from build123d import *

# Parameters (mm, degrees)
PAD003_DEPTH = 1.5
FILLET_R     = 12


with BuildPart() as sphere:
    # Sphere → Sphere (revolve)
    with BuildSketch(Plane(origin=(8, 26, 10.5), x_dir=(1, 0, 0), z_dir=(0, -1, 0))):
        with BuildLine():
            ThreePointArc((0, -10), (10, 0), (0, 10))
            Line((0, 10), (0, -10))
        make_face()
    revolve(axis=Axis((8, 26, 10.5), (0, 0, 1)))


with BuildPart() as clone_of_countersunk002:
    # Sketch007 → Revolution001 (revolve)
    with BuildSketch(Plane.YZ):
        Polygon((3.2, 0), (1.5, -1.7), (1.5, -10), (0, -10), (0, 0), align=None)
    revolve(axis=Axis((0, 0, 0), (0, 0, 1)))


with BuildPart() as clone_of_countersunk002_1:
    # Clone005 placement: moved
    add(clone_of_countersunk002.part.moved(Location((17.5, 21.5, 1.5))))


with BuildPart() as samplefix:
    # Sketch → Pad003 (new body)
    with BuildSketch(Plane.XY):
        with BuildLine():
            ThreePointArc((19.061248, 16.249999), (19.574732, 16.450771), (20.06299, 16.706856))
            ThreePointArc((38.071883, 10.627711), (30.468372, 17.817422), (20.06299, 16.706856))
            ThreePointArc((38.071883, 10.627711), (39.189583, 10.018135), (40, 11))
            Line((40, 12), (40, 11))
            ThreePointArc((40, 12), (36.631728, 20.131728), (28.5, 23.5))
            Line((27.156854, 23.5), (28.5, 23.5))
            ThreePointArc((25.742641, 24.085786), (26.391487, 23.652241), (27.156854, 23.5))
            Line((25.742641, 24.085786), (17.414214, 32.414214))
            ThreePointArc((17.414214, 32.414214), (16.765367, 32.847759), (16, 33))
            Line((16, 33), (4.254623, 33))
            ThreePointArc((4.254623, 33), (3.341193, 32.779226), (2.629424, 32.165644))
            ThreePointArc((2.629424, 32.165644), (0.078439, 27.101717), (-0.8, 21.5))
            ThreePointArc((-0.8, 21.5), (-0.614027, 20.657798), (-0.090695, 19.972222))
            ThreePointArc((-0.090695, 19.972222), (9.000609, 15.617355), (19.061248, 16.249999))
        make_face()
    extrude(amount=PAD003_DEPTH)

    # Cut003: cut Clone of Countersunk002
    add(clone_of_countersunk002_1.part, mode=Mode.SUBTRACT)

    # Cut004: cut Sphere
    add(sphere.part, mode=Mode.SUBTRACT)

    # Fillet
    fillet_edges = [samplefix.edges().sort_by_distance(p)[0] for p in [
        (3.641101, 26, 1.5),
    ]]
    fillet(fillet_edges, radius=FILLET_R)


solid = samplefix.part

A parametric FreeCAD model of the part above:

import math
import FreeCAD as App
import Part
import Sketcher

V = App.Vector
Q = App.Units.Quantity


def edges_at(feature, points):
    """Names of the edges that pass closest to the given points."""
    edges = feature.Shape.Edges
    near = lambda p: min(range(len(edges)), key=lambda i: edges[i].distToShape(Part.Vertex(*p))[0])
    return sorted({f"Edge{near(p) + 1}" for p in points})


def add_polygon(sketch, points):
    """Adds a closed chain of lines whose ends are joined by coincident constraints."""
    first, n = sketch.GeometryCount, len(points)
    for a, b in zip(points, points[1:] + points[:1]):
        sketch.addGeometry(Part.LineSegment(App.Vector(*a, 0), App.Vector(*b, 0)), False)
    for i in range(n):
        sketch.addConstraint(Sketcher.Constraint("Coincident", first + i, 2, first + (i + 1) % n, 1))

doc = App.newDocument("Part")
body = doc.addObject("PartDesign::Body", "Body")

# Sketch on XZ plane
sketch1 = body.newObject("Sketcher::SketchObject", "Sketch")
sketch1.AttachmentSupport = (doc.getObject("XZ_Plane"), [""])
sketch1.MapMode = "FlatFace"
sketch1.AttachmentOffset = App.Placement(V(0, 0, -26), App.Rotation())
sketch1.addGeometry([
    Part.ArcOfCircle(Part.Circle(V(8, 10, 0), V(0, 0, 1), 10), math.radians(-90), math.radians(90)),
    Part.LineSegment(V(8, 20, 0), V(8, 0, 0)),
], False)
sketch1.addGeometry(Part.LineSegment(V(8, 0, 0), V(8, 20, 0)), True)  # axis
sketch1.addConstraint([
    Sketcher.Constraint("Coincident", 0, 1, 1, 2),
    Sketcher.Constraint("Coincident", 1, 1, 0, 2),
    Sketcher.Constraint("Vertical", 1),
    Sketcher.Constraint("Vertical", 2),
    Sketcher.Constraint("Coincident", 2, 1, 0, 1),
    Sketcher.Constraint("Equal", 1, 2),
    Sketcher.Constraint("Radius", 0, 10.0),
    Sketcher.Constraint("DistanceX", -1, 1, 0, 3, 8.0),
    Sketcher.Constraint("DistanceX", -1, 1, 0, 1, 8.0),
    Sketcher.Constraint("DistanceY", -1, 1, 0, 3, 10.5),
])
revolution = body.newObject("PartDesign::Revolution", "Revolution")
revolution.Profile = sketch1
revolution.ReferenceAxis = (sketch1, ["Axis0"])
revolution.Angle = 360
body2 = doc.addObject("PartDesign::Body", "Body001")

# Sketch on YZ plane
sketch2 = body2.newObject("Sketcher::SketchObject", "Sketch001")
sketch2.AttachmentSupport = (doc.getObject("YZ_Plane001"), [""])
sketch2.MapMode = "FlatFace"
add_polygon(sketch2, [(1.5, -1.7), (3.2, 0), (0, 0), (0, -10), (1.5, -10)])  # lines 0-4
sketch2.addConstraint([
    Sketcher.Constraint("Horizontal", 1),
    Sketcher.Constraint("Vertical", 2),
    Sketcher.Constraint("Horizontal", 3),
    Sketcher.Constraint("Vertical", 4),
    Sketcher.Constraint("Coincident", 1, 2, -1, 1),
    Sketcher.Constraint("DistanceY", 2, 2, 2, 1, 10.0),
    Sketcher.Constraint("Angle", 0, Q("45 deg")),
    Sketcher.Constraint("DistanceX", 1, 2, 1, 1, 3.2),
    Sketcher.Constraint("DistanceX", 3, 1, 3, 2, 1.5),
])
revolution2 = body2.newObject("PartDesign::Revolution", "Revolution001")
revolution2.Profile = sketch2
revolution2.ReferenceAxis = (sketch2, ["V_Axis"])
revolution2.Angle = 360
body3 = doc.addObject("PartDesign::Body", "Body002")
doc.recompute()

body2.Placement = App.Placement(V(17.5, 21.5, 1.5), App.Rotation(V(0, 0, 1), 0))
boolean = body3.newObject("PartDesign::Boolean", "Boolean")
boolean.Type = "Fuse"
boolean.addObjects([body2])
body4 = doc.addObject("PartDesign::Body", "Body003")

# Sketch on XY plane
sketch3 = body4.newObject("Sketcher::SketchObject", "Sketch002")
sketch3.AttachmentSupport = (doc.getObject("XY_Plane003"), [""])
sketch3.MapMode = "FlatFace"
sketch3.addGeometry([
    Part.ArcOfCircle(Part.Circle(V(17.5, 21, 0), V(0, 0, 1), 5), math.radians(-71.81), math.radians(-59.16)),  # 0
    Part.ArcOfCircle(Part.Circle(V(26.5, 6, 0), V(0, 0, 1), 12.5), math.radians(22), math.radians(121)),  # 1
    Part.ArcOfCircle(Part.Circle(V(39, 11, 0), V(0, 0, 1), 1), math.radians(-158), math.radians(0)),  # 2
    Part.LineSegment(V(40, 11, 0), V(40, 12, 0)),  # 3
    Part.ArcOfCircle(Part.Circle(V(28.5, 12, 0), V(0, 0, 1), 11.5), math.radians(0), math.radians(90)),  # 4
    Part.LineSegment(V(28.5, 23.5, 0), V(27.2, 23.5, 0)),  # 5
    Part.ArcOfCircle(Part.Circle(V(27.2, 25.5, 0), V(0, 0, 1), 2), math.radians(-135), math.radians(-90)),  # 6
    Part.LineSegment(V(25.7, 24.1, 0), V(17.4, 32.4, 0)),  # 7
    Part.ArcOfCircle(Part.Circle(V(16, 31, 0), V(0, 0, 1), 2), math.radians(45), math.radians(90)),  # 8
    Part.LineSegment(V(16, 33, 0), V(4.3, 33, 0)),  # 9
    Part.ArcOfCircle(Part.Circle(V(4.3, 31, 0), V(0, 0, 1), 2), math.radians(90), math.radians(144)),  # 10
    Part.ArcOfCircle(Part.Circle(V(17.5, 21.5, 0), V(0, 0, 1), 18.3), math.radians(144), math.radians(180)),  # 11
    Part.ArcOfCircle(Part.Circle(V(1.2, 21.5, 0), V(0, 0, 1), 2), math.radians(-180), math.radians(-130)),  # 12
    Part.ArcOfCircle(Part.Circle(V(12.8, 35.3, 0), V(0, 0, 1), 20), math.radians(-130), math.radians(-72)),  # 13
], False)
sketch3.addConstraint([
    Sketcher.Constraint("Coincident", 0, 2, 1, 2),
    Sketcher.Constraint("Coincident", 1, 1, 2, 1),
    Sketcher.Constraint("Tangent", 2, 2, 3, 1),
    Sketcher.Constraint("Tangent", 3, 2, 4, 1),
    Sketcher.Constraint("Tangent", 4, 2, 5, 1),
    Sketcher.Constraint("Tangent", 5, 2, 6, 2),
    Sketcher.Constraint("Tangent", 6, 1, 7, 1),
    Sketcher.Constraint("Tangent", 7, 2, 8, 1),
    Sketcher.Constraint("Tangent", 8, 2, 9, 1),
    Sketcher.Constraint("Tangent", 9, 2, 10, 1),
    Sketcher.Constraint("Tangent", 10, 2, 11, 1),
    Sketcher.Constraint("Tangent", 11, 2, 12, 1),
    Sketcher.Constraint("Tangent", 12, 2, 13, 1),
    Sketcher.Constraint("Coincident", 13, 2, 0, 1),
    Sketcher.Constraint("Vertical", 3),
    Sketcher.Constraint("Horizontal", 5),
    Sketcher.Constraint("Horizontal", 9),
    Sketcher.Constraint("Equal", 6, 10),
    Sketcher.Constraint("Equal", 8, 12),
    Sketcher.Constraint("Horizontal", 12, 3, 11, 2),
    Sketcher.Constraint("Radius", 2, 1.0),
    Sketcher.Constraint("Radius", 6, 2.0),
    Sketcher.Constraint("Radius", 13, 20.0),
    Sketcher.Constraint("Radius", 1, 12.499999),
    Sketcher.Constraint("Radius", 4, 11.5),
    Sketcher.Constraint("DistanceY", 3, 1, 3, 2, 1.0),
    Sketcher.Constraint("Angle", 7, Q("134.999997 deg")),
    Sketcher.Constraint("DistanceX", -1, 1, 2, 3, 39.0),
    Sketcher.Constraint("DistanceY", -1, 1, 2, 3, 11.0),
    Sketcher.Constraint("DistanceX", -1, 1, 8, 3, 15.999999),
    Sketcher.Constraint("DistanceY", -1, 1, 10, 3, 31.000002),
    Sketcher.Constraint("DistanceY", -1, 1, 12, 3, 21.500002),
    Sketcher.Constraint("DistanceX", 11, 2, -1, 1, 0.8),
    Sketcher.Constraint("DistanceY", -1, 1, 13, 3, 35.250002),
    Sketcher.Constraint("DistanceY", -1, 1, 13, 2, 16.249999),
    Sketcher.Constraint("Radius", 0, 5.000109),
    Sketcher.Constraint("Radius", 8, 2.000004),
    Sketcher.Constraint("Radius", 11, 18.299986),
    Sketcher.Constraint("DistanceY", 1, 3, 8, 3, 25.025998),
    Sketcher.Constraint("DistanceX", -1, 1, 0, 2, 20.06299),
    Sketcher.Constraint("DistanceY", -1, 1, 1, 1, 10.627711),
])
pad1 = body4.newObject("PartDesign::Pad", "Pad")
pad1.Profile = sketch3
pad1.Length = 1.5
doc.recompute()

boolean2 = body4.newObject("PartDesign::Boolean", "Boolean001")
boolean2.Type = "Cut"
boolean2.addObjects([body3])
doc.recompute()

boolean3 = body4.newObject("PartDesign::Boolean", "Boolean002")
boolean3.Type = "Cut"
boolean3.addObjects([body])
doc.recompute()

fillet = body4.newObject("PartDesign::Fillet", "Fillet")
fillet.Base = (boolean3, edges_at(boolean3, [(3.641, 26, 1.5)]))
fillet.Radius = 12

doc.recompute()
